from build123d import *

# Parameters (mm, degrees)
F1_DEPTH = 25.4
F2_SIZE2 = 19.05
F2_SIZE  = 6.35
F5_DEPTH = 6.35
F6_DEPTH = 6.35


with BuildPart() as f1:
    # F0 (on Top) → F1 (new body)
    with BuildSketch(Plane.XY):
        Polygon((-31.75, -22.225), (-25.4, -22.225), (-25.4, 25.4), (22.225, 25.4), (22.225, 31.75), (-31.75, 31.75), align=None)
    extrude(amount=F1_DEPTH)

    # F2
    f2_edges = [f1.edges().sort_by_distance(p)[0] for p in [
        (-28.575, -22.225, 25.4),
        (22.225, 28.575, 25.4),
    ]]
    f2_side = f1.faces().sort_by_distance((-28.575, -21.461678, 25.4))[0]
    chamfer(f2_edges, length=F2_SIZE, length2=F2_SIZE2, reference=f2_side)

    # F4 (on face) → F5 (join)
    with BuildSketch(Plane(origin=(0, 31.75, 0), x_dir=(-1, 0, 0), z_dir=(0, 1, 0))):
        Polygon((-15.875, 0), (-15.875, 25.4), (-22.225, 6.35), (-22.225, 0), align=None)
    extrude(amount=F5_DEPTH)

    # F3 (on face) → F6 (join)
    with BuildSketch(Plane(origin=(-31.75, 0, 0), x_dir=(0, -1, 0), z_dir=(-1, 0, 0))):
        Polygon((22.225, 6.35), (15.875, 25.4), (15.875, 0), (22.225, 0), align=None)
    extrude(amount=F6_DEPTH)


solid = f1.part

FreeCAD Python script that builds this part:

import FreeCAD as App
import Part
import Sketcher
from FreeCAD import Vector
Q = App.Units.Quantity


def edges_at(feature, points):
    """Names of the edges that pass closest to the given points."""
    edges = feature.Shape.Edges
    near = lambda p: min(range(len(edges)), key=lambda i: edges[i].distToShape(Part.Vertex(*p))[0])
    return sorted({f"Edge{near(p) + 1}" for p in points})

doc = App.newDocument("Part")
body = doc.addObject("PartDesign::Body", "Body")

sketch1 = body.newObject("Sketcher::SketchObject", "Sketch")
sketch1.AttachmentSupport = (doc.getObject("XY_Plane"), [""])
sketch1.MapMode = "FlatFace"
sketch1.addGeometry([
    Part.LineSegment(Vector(-31.75, -22.225, 0), Vector(-25.4, -22.225, 0)),
    Part.LineSegment(Vector(-25.4, -22.225, 0), Vector(-25.4, 25.4, 0)),
    Part.LineSegment(Vector(-25.4, 25.4, 0), Vector(22.225, 25.4, 0)),
    Part.LineSegment(Vector(22.225, 25.4, 0), Vector(22.225, 31.75, 0)),
    Part.LineSegment(Vector(22.225, 31.75, 0), Vector(-31.75, 31.75, 0)),
    Part.LineSegment(Vector(-31.75, 31.75, 0), Vector(-31.75, -22.225, 0)),
], False)
sketch1.addConstraint([
    Sketcher.Constraint("Coincident", 0, 2, 1, 1),
    Sketcher.Constraint("Coincident", 1, 2, 2, 1),
    Sketcher.Constraint("Coincident", 2, 2, 3, 1),
    Sketcher.Constraint("Coincident", 3, 2, 4, 1),
    Sketcher.Constraint("Coincident", 4, 2, 5, 1),
    Sketcher.Constraint("Coincident", 5, 2, 0, 1),
    Sketcher.Constraint("Horizontal", 0),
    Sketcher.Constraint("Vertical", 1),
    Sketcher.Constraint("Horizontal", 2),
    Sketcher.Constraint("Vertical", 3),
    Sketcher.Constraint("Horizontal", 4),
    Sketcher.Constraint("Vertical", 5),
    Sketcher.Constraint("Equal", 2, 1),
    Sketcher.Constraint("Equal", 0, 3),
    Sketcher.Constraint("DistanceX", 0, 2, -1, 1, Q("1 in")),
    Sketcher.Constraint("DistanceY", -1, 1, 1, 2, Q("1 in")),
    Sketcher.Constraint("DistanceX", 0, 1, 0, 2, Q("0.25 in")),
    Sketcher.Constraint("DistanceX", 2, 1, 2, 2, Q("1.875 in")),
])
pad1 = body.newObject("PartDesign::Pad", "Pad")
pad1.Profile = sketch1
pad1.Length = Q("1 in")
doc.recompute()

chamfer = body.newObject("PartDesign::Chamfer", "Chamfer")
chamfer.Base = (pad1, edges_at(pad1, [(-28.575, -22.225, 25.4), (22.225, 28.575, 25.4)]))
chamfer.ChamferType = "Two distances"
chamfer.Size = Q("0.25 in")
chamfer.Size2 = Q("0.75 in")
chamfer.FlipDirection = True

sketch2 = body.newObject("Sketcher::SketchObject", "Sketch001")
sketch2.AttachmentSupport = (doc.getObject("XZ_Plane"), [""])
sketch2.MapMode = "FlatFace"
sketch2.AttachmentOffset = App.Placement(Vector(0, 0, -1.25 * 25.4), App.Rotation())
sketch2.addGeometry([
    Part.LineSegment(Vector(15.875, 0, 0), Vector(15.875, 25.4, 0)),
    Part.LineSegment(Vector(15.875, 25.4, 0), Vector(22.225, 6.35, 0)),
    Part.LineSegment(Vector(22.225, 6.35, 0), Vector(22.225, 0, 0)),
    Part.LineSegment(Vector(22.225, 0, 0), Vector(15.875, 0, 0)),
], False)
sketch2.addConstraint([
    Sketcher.Constraint("Coincident", 0, 2, 1, 1),
    Sketcher.Constraint("Coincident", 1, 2, 2, 1),
    Sketcher.Constraint("Coincident", 2, 2, 3, 1),
    Sketcher.Constraint("Coincident", 3, 2, 0, 1),
    Sketcher.Constraint("Vertical", 0),
    Sketcher.Constraint("Vertical", 2),
    Sketcher.Constraint("Horizontal", 3),
    Sketcher.Constraint("PointOnObject", 2, 2, -1),
    Sketcher.Constraint("Equal", 3, 2),
    Sketcher.Constraint("DistanceY", 0, 1, 0, 2, Q("1 in")),
    Sketcher.Constraint("DistanceX", 3, 2, 3, 1, Q("0.25 in")),
    Sketcher.Constraint("DistanceX", -1, 1, 0, 2, Q("0.625 in")),
])
pad2 = body.newObject("PartDesign::Pad", "Pad001")
pad2.Profile = sketch2
pad2.Length = Q("0.25 in")
pad2.Reversed = True

sketch3 = body.newObject("Sketcher::SketchObject", "Sketch002")
sketch3.AttachmentSupport = (doc.getObject("YZ_Plane"), [""])
sketch3.MapMode = "FlatFace"
sketch3.AttachmentOffset = App.Placement(Vector(0, 0, -1.25 * 25.4), App.Rotation())
sketch3.addGeometry([
    Part.LineSegment(Vector(-22.225, 6.35, 0), Vector(-15.875, 25.4, 0)),
    Part.LineSegment(Vector(-15.875, 25.4, 0), Vector(-15.875, 0, 0)),
    Part.LineSegment(Vector(-15.875, 0, 0), Vector(-22.225, 0, 0)),
    Part.LineSegment(Vector(-22.225, 0, 0), Vector(-22.225, 6.35, 0)),
], False)
sketch3.addConstraint([
    Sketcher.Constraint("Coincident", 0, 2, 1, 1),
    Sketcher.Constraint("Coincident", 1, 2, 2, 1),
    Sketcher.Constraint("Coincident", 2, 2, 3, 1),
    Sketcher.Constraint("Coincident", 3, 2, 0, 1),
    Sketcher.Constraint("Vertical", 1),
    Sketcher.Constraint("Horizontal", 2),
    Sketcher.Constraint("Vertical", 3),
    Sketcher.Constraint("PointOnObject", 1, 2, -1),
    Sketcher.Constraint("Equal", 2, 3),
    Sketcher.Constraint("DistanceY", 1, 2, 1, 1, Q("1 in")),
    Sketcher.Constraint("DistanceX", 2, 2, 2, 1, Q("0.25 in")),
    Sketcher.Constraint("DistanceX", 0, 2, -1, 1, Q("0.625 in")),
])
pad3 = body.newObject("PartDesign::Pad", "Pad002")
pad3.Profile = sketch3
pad3.Length = Q("0.25 in")
pad3.Reversed = True

doc.recompute()
